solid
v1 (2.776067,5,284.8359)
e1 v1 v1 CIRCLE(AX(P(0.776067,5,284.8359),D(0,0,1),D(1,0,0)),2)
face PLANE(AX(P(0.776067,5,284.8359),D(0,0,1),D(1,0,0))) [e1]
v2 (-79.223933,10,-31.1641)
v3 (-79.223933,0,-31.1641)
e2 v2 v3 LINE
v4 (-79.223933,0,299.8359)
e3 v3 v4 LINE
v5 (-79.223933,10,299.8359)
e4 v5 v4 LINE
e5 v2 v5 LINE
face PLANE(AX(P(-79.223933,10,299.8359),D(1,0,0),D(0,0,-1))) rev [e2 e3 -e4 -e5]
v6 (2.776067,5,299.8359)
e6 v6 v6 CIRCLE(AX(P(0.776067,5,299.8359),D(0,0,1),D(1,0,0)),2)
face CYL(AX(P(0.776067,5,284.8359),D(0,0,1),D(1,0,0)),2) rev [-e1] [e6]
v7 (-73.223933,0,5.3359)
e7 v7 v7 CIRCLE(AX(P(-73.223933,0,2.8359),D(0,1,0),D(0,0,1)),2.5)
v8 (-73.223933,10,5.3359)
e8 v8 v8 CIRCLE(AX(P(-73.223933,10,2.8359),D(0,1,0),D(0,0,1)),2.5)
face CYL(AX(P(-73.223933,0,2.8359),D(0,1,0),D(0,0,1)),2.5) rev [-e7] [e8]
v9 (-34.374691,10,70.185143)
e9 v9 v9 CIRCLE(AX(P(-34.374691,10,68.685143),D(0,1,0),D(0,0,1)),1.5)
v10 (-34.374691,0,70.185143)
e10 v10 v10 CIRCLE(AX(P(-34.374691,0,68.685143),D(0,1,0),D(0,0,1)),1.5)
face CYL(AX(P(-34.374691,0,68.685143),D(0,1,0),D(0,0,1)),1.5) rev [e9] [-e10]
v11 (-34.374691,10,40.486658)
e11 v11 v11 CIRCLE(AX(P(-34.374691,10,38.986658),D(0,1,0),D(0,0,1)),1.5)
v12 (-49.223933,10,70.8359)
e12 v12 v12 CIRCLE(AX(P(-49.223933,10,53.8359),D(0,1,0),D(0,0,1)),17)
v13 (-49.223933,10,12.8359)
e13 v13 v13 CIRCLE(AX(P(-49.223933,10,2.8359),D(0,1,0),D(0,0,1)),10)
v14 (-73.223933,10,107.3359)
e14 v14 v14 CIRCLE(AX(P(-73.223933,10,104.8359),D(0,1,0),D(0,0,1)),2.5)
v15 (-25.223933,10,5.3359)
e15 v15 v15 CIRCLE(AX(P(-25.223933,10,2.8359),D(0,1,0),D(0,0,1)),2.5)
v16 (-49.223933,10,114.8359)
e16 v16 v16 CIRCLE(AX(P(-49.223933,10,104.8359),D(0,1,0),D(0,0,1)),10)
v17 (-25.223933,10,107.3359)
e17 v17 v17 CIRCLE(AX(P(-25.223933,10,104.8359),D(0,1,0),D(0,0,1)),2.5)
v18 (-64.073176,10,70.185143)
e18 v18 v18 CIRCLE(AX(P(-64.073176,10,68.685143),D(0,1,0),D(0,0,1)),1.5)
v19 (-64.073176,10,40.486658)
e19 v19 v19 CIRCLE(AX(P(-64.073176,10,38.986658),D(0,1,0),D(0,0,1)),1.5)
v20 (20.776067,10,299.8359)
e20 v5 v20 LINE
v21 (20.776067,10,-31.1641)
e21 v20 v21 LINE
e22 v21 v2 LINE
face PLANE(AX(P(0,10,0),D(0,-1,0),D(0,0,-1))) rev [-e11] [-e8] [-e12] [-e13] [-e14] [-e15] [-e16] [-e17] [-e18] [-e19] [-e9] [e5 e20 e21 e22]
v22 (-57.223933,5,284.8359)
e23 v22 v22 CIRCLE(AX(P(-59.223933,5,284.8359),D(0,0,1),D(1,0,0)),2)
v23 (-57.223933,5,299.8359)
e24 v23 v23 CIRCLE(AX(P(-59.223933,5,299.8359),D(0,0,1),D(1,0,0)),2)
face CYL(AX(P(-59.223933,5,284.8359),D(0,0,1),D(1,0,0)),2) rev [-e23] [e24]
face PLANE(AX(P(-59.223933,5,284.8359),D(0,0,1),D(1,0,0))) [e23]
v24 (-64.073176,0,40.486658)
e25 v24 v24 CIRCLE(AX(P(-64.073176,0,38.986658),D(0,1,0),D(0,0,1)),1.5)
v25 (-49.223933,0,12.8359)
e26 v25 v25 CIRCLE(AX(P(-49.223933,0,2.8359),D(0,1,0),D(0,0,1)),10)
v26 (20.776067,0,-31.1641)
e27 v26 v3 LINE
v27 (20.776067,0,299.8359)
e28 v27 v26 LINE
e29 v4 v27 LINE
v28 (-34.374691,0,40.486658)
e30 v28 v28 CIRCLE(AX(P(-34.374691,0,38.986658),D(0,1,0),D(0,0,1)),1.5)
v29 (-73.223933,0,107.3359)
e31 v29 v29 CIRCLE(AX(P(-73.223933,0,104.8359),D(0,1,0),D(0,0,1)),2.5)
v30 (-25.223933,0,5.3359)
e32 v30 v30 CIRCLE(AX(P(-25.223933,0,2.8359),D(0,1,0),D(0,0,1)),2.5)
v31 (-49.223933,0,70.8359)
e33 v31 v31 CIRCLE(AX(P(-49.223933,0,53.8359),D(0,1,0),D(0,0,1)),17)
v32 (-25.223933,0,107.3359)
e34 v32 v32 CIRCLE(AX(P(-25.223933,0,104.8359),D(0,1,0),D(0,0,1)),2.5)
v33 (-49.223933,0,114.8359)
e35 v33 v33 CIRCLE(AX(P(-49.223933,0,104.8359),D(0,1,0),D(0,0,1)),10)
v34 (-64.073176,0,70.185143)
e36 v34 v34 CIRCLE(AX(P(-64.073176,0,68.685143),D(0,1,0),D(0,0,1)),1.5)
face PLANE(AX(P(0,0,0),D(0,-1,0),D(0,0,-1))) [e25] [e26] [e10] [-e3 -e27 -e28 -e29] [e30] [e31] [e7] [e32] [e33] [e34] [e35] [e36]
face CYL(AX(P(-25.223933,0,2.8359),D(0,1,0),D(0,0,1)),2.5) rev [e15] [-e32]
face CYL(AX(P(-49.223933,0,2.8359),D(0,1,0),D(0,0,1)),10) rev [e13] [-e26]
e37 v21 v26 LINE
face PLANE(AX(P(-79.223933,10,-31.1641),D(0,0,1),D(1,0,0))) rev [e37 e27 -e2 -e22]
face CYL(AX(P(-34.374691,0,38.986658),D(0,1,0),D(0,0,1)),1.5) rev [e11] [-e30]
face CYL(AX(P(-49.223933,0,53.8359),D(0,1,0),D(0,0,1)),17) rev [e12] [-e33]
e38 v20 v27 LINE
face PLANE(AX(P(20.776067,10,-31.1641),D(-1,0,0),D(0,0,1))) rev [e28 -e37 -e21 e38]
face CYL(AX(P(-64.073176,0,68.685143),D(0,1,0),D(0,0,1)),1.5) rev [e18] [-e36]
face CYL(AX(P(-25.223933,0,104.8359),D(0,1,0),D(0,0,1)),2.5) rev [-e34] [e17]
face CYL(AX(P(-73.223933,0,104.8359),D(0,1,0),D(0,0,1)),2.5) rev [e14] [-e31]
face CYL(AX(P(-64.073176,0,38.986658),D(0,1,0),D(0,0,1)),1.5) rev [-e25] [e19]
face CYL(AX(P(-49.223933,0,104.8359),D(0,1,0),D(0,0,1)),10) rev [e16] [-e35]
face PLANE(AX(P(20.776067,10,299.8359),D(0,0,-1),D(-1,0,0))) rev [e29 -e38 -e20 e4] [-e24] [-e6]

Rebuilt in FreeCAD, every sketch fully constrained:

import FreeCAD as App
import Part
import Sketcher
from FreeCAD import Vector


def add_polygon(sketch, points):
    """Adds a closed chain of lines whose ends are joined by coincident constraints."""
    first, n = sketch.GeometryCount, len(points)
    for a, b in zip(points, points[1:] + points[:1]):
        sketch.addGeometry(Part.LineSegment(App.Vector(*a, 0), App.Vector(*b, 0)), False)
    for i in range(n):
        sketch.addConstraint(Sketcher.Constraint("Coincident", first + i, 2, first + (i + 1) % n, 1))

doc = App.newDocument("Part")
body = doc.addObject("PartDesign::Body", "Body")

sketch1 = body.newObject("Sketcher::SketchObject", "Sketch")
sketch1.AttachmentSupport = (doc.getObject("XZ_Plane"), [""])
sketch1.MapMode = "FlatFace"
add_polygon(sketch1, [(-79, -31), (-79, 300), (21, 300), (21, -31)])
sketch1.addConstraint(Sketcher.Constraint("Vertical", 0))
sketch1.addConstraint(Sketcher.Constraint("Horizontal", 1))
sketch1.addConstraint(Sketcher.Constraint("Vertical", 2))
sketch1.addConstraint(Sketcher.Constraint("Horizontal", 3))
sketch1.addConstraint(Sketcher.Constraint("DistanceX", 1, 1, 1, 2, 100.0))
sketch1.addConstraint(Sketcher.Constraint("DistanceY", 0, 1, 0, 2, 331.0))
sketch1.addConstraint(Sketcher.Constraint("DistanceY", -1, 1, 0, 2, 299.8359))
sketch1.addConstraint(Sketcher.Constraint("DistanceX", 0, 2, -1, 1, 79.223933))
pad1 = body.newObject("PartDesign::Pad", "Pad")
pad1.Profile = sketch1
pad1.Length = 10
pad1.Reversed = True

sketch2 = body.newObject("Sketcher::SketchObject", "Sketch001")
sketch2.AttachmentSupport = (doc.getObject("XZ_Plane"), [""])
sketch2.MapMode = "FlatFace"
sketch2.AttachmentOffset = App.Placement(Vector(0, 0, -10), App.Rotation())
sketch2.addGeometry(Part.Circle(Vector(-49.2, 2.8, 0), Vector(0, 0, 1), 10), False)
sketch2.addGeometry(Part.Circle(Vector(-73.2, 2.8, 0), Vector(0, 0, 1), 2.5), False)
sketch2.addGeometry(Part.Circle(Vector(-25.2, 2.8, 0), Vector(0, 0, 1), 2.5), False)
sketch2.addGeometry(Part.Circle(Vector(-49.2, 104.8, 0), Vector(0, 0, 1), 10), False)
sketch2.addGeometry(Part.Circle(Vector(-73.2, 104.8, 0), Vector(0, 0, 1), 2.5), False)
sketch2.addGeometry(Part.Circle(Vector(-25.2, 104.8, 0), Vector(0, 0, 1), 2.5), False)
sketch2.addGeometry(Part.Circle(Vector(-49.2, 53.8, 0), Vector(0, 0, 1), 17), False)
sketch2.addGeometry(Part.Circle(Vector(-64.1, 39, 0), Vector(0, 0, 1), 1.5), False)
sketch2.addGeometry(Part.Circle(Vector(-34.4, 39, 0), Vector(0, 0, 1), 1.5), False)
sketch2.addGeometry(Part.Circle(Vector(-34.4, 68.7, 0), Vector(0, 0, 1), 1.5), False)
sketch2.addGeometry(Part.Circle(Vector(-64.1, 68.7, 0), Vector(0, 0, 1), 1.5), False)
sketch2.addConstraint(Sketcher.Constraint("Equal", 1, 2))
sketch2.addConstraint(Sketcher.Constraint("Equal", 0, 3))
sketch2.addConstraint(Sketcher.Constraint("Equal", 2, 4))
sketch2.addConstraint(Sketcher.Constraint("Equal", 4, 5))
sketch2.addConstraint(Sketcher.Constraint("Equal", 7, 8))
sketch2.addConstraint(Sketcher.Constraint("Equal", 8, 9))
sketch2.addConstraint(Sketcher.Constraint("Equal", 9, 10))
sketch2.addConstraint(Sketcher.Constraint("Horizontal", 0, 3, 1, 3))
sketch2.addConstraint(Sketcher.Constraint("Horizontal", 1, 3, 2, 3))
sketch2.addConstraint(Sketcher.Constraint("Horizontal", 3, 3, 4, 3))
sketch2.addConstraint(Sketcher.Constraint("Horizontal", 4, 3, 5, 3))
sketch2.addConstraint(Sketcher.Constraint("Horizontal", 7, 3, 8, 3))
sketch2.addConstraint(Sketcher.Constraint("Horizontal", 9, 3, 10, 3))
sketch2.addConstraint(Sketcher.Constraint("Vertical", 0, 3, 3, 3))
sketch2.addConstraint(Sketcher.Constraint("Vertical", 1, 3, 4, 3))
sketch2.addConstraint(Sketcher.Constraint("Vertical", 2, 3, 5, 3))
sketch2.addConstraint(Sketcher.Constraint("Vertical", 3, 3, 6, 3))
sketch2.addConstraint(Sketcher.Constraint("Vertical", 8, 3, 9, 3))
sketch2.addConstraint(Sketcher.Constraint("Vertical", 7, 3, 10, 3))
sketch2.addConstraint(Sketcher.Constraint("Diameter", 0, 20.0))
sketch2.addConstraint(Sketcher.Constraint("Diameter", 1, 5.0))
sketch2.addConstraint(Sketcher.Constraint("Diameter", 6, 34.0))
sketch2.addConstraint(Sketcher.Constraint("Diameter", 7, 3.0))
sketch2.addConstraint(Sketcher.Constraint("DistanceX", 1, 3, 0, 3, 24.0))
sketch2.addConstraint(Sketcher.Constraint("DistanceX", 0, 3, 2, 3, 24.0))
sketch2.addConstraint(Sketcher.Constraint("DistanceY", 0, 3, 3, 3, 102.0))
sketch2.addConstraint(Sketcher.Constraint("DistanceY", 0, 3, 6, 3, 51.0))
sketch2.addConstraint(Sketcher.Constraint("DistanceY", -1, 1, 0, 3, 2.8359))
sketch2.addConstraint(Sketcher.Constraint("DistanceX", 8, 3, -1, 1, 34.374691))
sketch2.addConstraint(Sketcher.Constraint("DistanceX", 0, 3, -1, 1, 49.223933))
sketch2.addConstraint(Sketcher.Constraint("DistanceX", 7, 3, -1, 1, 64.073176))
sketch2.addConstraint(Sketcher.Constraint("DistanceY", -1, 1, 7, 3, 38.986658))
sketch2.addConstraint(Sketcher.Constraint("DistanceY", -1, 1, 9, 3, 68.685143))
pocket1 = body.newObject("PartDesign::Pocket", "Pocket")
pocket1.Profile = sketch2
pocket1.Type = "ThroughAll"
pocket1.Reversed = True

sketch3 = body.newObject("Sketcher::SketchObject", "Sketch002")
sketch3.AttachmentSupport = (doc.getObject("XY_Plane"), [""])
sketch3.MapMode = "FlatFace"
sketch3.AttachmentOffset = App.Placement(Vector(0, 0, 299.8359), App.Rotation())
sketch3.addGeometry(Part.Circle(Vector(-59.2, 5, 0), Vector(0, 0, 1), 2), False)
sketch3.addGeometry(Part.Circle(Vector(0.8, 5, 0), Vector(0, 0, 1), 2), False)
sketch3.addConstraint(Sketcher.Constraint("Equal", 0, 1))
sketch3.addConstraint(Sketcher.Constraint("Horizontal", 0, 3, 1, 3))
sketch3.addConstraint(Sketcher.Constraint("Diameter", 0, 4.0))
sketch3.addConstraint(Sketcher.Constraint("DistanceY", -1, 1, 0, 3, 5.0))
sketch3.addConstraint(Sketcher.Constraint("DistanceX", 0, 3, 1, 3, 60.0))
sketch3.addConstraint(Sketcher.Constraint("DistanceX", 0, 3, -1, 1, 59.223933))
pocket2 = body.newObject("PartDesign::Pocket", "Pocket001")
pocket2.Profile = sketch3
pocket2.Length = 15

doc.recompute()
